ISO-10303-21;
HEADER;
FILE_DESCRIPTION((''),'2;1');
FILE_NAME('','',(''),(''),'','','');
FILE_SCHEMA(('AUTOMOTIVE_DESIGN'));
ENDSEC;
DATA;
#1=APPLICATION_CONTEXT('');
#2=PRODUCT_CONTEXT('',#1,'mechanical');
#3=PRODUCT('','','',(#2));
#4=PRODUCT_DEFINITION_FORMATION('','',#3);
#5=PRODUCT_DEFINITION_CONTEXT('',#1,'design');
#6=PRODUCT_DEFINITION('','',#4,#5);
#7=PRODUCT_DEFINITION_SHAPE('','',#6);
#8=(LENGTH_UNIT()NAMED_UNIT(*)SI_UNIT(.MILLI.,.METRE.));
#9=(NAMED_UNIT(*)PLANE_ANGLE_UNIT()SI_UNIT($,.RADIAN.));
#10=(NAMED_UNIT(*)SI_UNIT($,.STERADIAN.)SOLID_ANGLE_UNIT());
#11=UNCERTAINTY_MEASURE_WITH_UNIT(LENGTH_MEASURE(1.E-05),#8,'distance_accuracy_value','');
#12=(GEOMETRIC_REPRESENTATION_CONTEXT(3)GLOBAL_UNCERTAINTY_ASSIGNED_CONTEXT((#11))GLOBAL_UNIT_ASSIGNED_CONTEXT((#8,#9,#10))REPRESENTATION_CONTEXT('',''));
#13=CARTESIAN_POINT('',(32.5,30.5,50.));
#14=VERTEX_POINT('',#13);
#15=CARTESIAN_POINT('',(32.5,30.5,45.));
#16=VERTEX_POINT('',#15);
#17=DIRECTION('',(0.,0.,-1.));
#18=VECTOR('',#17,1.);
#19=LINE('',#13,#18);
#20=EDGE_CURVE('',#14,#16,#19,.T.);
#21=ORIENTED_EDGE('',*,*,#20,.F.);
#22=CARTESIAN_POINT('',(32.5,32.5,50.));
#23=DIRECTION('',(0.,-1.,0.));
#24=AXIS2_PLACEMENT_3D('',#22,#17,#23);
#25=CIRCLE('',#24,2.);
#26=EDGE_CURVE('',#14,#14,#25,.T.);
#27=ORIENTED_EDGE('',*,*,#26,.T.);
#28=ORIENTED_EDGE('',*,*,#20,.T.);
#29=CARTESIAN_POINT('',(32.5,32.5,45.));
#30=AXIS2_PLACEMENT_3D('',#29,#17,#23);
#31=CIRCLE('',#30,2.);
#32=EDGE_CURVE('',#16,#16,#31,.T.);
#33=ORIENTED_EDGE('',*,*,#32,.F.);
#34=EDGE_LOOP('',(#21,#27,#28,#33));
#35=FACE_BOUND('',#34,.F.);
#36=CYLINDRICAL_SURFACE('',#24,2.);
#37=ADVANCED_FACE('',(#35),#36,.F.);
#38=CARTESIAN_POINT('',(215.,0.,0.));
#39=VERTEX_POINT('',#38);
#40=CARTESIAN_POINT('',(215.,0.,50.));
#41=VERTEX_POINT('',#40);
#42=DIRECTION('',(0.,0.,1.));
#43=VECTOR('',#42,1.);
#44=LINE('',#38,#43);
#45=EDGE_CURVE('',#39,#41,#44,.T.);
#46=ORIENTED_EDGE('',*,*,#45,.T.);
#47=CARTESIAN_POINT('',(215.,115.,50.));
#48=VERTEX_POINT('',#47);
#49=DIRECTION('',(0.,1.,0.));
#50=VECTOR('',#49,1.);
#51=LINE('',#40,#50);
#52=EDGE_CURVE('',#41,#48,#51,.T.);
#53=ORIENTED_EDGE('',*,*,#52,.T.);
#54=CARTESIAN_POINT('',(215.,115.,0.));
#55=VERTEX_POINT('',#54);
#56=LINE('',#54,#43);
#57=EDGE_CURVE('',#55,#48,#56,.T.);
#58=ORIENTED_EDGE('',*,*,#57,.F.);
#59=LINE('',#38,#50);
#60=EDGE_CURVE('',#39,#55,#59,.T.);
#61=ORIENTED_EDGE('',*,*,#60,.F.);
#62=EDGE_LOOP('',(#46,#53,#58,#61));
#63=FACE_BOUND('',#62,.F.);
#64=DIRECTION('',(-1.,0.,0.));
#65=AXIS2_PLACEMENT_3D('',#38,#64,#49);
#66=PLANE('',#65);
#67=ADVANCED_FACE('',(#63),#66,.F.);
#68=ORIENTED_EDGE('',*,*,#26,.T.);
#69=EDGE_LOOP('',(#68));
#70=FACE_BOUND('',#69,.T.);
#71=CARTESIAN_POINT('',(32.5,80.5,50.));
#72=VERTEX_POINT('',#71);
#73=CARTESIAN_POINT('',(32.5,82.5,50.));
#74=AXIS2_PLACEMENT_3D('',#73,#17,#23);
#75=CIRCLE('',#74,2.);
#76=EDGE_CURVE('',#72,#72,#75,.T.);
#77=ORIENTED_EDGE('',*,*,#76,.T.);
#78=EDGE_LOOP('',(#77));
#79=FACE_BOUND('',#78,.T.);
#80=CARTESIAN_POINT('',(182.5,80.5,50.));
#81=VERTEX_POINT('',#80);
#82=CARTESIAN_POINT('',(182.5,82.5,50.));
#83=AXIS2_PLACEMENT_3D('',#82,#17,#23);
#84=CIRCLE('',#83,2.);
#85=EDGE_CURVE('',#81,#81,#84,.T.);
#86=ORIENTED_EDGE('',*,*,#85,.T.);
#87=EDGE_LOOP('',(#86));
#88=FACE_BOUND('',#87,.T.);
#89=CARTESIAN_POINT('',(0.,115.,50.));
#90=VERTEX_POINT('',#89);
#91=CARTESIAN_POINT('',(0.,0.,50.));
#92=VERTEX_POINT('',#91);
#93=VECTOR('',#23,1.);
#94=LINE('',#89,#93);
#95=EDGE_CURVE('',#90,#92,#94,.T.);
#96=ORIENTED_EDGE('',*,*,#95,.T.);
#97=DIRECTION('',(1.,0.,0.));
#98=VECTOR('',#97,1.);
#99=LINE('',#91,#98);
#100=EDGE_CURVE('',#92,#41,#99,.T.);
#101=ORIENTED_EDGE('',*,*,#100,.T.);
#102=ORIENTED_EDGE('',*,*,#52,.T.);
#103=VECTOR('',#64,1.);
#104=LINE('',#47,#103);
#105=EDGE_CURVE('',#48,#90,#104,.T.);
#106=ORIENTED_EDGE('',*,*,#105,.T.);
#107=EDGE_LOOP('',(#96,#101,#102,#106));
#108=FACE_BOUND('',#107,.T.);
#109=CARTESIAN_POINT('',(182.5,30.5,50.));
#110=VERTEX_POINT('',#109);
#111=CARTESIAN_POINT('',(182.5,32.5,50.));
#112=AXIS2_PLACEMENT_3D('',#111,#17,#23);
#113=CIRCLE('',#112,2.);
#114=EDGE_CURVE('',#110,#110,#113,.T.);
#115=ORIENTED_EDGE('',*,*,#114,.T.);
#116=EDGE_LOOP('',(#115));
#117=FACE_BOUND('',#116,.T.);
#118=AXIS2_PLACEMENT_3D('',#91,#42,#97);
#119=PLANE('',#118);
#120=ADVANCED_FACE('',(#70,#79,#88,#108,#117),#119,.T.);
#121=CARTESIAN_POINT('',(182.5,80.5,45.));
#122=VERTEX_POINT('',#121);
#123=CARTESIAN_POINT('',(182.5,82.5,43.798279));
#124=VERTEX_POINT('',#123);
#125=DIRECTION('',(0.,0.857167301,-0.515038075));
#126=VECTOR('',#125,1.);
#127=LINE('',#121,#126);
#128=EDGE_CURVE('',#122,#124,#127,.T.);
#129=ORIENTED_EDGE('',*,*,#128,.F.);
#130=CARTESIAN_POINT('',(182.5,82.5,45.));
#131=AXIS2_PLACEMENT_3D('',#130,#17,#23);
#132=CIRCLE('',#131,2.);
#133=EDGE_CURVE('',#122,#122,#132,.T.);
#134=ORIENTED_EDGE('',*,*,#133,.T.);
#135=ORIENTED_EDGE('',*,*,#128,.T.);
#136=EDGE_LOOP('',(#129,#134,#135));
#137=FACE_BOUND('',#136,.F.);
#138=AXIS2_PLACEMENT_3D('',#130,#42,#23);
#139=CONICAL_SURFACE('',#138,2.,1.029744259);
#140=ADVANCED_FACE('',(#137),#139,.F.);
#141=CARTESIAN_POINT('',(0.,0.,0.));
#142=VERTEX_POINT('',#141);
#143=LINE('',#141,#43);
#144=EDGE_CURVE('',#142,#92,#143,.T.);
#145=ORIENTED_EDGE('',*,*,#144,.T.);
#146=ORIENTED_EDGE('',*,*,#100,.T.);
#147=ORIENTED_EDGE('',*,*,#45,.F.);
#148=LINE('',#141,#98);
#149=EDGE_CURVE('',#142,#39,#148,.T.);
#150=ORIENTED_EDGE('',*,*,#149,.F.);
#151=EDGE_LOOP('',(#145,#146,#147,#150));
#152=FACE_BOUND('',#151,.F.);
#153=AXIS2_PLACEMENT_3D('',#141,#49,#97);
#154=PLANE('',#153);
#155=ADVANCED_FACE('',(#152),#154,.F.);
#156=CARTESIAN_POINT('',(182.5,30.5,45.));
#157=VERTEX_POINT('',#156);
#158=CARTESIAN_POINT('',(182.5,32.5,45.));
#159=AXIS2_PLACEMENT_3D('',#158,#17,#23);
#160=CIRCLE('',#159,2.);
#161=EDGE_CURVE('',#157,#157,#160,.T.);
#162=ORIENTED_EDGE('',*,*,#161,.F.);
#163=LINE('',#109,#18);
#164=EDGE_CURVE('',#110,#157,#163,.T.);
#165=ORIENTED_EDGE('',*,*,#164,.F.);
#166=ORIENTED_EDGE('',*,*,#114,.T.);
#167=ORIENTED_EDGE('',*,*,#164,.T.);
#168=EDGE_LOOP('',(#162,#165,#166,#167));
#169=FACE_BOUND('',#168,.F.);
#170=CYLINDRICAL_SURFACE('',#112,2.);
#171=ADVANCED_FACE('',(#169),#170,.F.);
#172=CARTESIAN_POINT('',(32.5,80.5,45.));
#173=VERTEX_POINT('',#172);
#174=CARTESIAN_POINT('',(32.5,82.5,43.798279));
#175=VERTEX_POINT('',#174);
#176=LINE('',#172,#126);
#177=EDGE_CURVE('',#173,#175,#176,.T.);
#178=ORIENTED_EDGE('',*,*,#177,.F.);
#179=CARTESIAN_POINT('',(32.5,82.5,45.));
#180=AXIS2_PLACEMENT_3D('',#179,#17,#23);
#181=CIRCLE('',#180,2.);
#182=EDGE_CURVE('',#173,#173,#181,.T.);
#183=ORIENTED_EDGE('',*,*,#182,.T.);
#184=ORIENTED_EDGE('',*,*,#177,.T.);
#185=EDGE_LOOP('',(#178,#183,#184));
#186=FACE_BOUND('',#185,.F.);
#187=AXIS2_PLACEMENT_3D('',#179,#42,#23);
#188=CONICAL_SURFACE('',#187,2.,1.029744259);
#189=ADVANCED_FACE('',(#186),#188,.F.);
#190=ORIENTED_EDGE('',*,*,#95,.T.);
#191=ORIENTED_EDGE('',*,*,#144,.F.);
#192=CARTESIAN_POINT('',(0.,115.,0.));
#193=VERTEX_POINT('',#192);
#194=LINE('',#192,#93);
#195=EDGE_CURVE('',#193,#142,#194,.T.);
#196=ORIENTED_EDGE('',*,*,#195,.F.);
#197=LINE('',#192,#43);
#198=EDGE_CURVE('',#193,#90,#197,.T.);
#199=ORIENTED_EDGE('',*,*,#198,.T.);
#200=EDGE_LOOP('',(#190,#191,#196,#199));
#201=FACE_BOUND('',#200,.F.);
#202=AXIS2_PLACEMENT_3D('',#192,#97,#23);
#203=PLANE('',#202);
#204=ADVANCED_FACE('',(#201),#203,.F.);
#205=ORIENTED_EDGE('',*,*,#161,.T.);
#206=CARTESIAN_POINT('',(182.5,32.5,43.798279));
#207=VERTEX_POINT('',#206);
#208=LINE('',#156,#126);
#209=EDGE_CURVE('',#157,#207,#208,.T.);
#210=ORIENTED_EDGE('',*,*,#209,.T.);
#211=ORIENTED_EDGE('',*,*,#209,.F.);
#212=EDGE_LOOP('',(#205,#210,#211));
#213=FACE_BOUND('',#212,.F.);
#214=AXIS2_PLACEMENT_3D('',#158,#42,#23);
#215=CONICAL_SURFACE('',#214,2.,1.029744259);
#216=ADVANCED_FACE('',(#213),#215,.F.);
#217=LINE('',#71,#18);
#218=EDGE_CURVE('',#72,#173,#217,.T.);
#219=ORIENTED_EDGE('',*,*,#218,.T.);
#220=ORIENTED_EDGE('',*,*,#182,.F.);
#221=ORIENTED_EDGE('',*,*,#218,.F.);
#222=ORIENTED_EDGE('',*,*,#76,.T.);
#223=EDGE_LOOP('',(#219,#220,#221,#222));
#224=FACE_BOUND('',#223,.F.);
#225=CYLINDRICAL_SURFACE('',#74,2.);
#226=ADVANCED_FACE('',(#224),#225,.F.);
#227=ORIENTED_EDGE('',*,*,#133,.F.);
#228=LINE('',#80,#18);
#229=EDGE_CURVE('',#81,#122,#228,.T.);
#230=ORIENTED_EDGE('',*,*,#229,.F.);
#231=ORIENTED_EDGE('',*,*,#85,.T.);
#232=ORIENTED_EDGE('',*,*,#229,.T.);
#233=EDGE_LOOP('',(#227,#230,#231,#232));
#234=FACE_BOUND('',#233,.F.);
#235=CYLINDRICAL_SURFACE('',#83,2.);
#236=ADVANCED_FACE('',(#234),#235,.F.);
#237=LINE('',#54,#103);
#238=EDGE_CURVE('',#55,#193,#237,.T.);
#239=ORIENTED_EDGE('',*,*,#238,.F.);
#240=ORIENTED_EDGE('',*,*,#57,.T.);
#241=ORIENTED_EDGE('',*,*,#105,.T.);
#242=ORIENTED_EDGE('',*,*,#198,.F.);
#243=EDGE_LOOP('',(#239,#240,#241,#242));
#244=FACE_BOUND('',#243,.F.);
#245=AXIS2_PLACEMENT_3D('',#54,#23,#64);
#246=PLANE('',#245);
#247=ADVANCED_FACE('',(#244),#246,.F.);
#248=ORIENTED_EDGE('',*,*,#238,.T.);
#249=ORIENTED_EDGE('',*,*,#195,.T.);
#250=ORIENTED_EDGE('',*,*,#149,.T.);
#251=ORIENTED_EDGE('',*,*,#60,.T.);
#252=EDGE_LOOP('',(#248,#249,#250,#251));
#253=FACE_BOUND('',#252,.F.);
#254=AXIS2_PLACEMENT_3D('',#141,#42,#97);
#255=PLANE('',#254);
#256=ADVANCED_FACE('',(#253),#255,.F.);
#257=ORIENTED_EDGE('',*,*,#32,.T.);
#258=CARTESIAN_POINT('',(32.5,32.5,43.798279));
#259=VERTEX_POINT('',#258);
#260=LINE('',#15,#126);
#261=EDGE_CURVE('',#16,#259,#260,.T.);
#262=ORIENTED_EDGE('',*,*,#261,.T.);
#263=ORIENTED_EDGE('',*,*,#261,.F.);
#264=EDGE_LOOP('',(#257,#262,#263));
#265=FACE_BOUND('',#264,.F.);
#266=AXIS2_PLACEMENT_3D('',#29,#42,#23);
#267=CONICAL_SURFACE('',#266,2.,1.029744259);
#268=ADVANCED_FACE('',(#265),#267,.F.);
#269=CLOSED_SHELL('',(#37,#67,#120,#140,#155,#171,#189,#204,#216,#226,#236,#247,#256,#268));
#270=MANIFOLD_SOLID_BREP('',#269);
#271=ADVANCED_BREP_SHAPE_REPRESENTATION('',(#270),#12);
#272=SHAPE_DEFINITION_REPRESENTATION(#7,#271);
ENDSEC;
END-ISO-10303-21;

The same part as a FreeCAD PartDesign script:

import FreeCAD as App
import Part
import Sketcher

V = App.Vector
Q = App.Units.Quantity

doc = App.newDocument("Part")
body = doc.addObject("PartDesign::Body", "Body")

# Sketch on XY plane
sketch1 = doc.addObject("Sketcher::SketchObject", "Sketch")
body.addObject(sketch1)
sketch1.AttachmentSupport = (doc.XY_Plane, [""])
sketch1.MapMode = "FlatFace"
sketch1.addGeometry([
    Part.LineSegment(V(0, 115, 0), V(0, 0, 0)),
    Part.LineSegment(V(0, 0, 0), V(215, 0, 0)),
    Part.LineSegment(V(215, 0, 0), V(215, 115, 0)),
    Part.LineSegment(V(215, 115, 0), V(0, 115, 0)),
], False)
sketch1.addConstraint([
    Sketcher.Constraint("Coincident", 0, 2, 1, 1),
    Sketcher.Constraint("Coincident", 1, 2, 2, 1),
    Sketcher.Constraint("Coincident", 2, 2, 3, 1),
    Sketcher.Constraint("Coincident", 3, 2, 0, 1),
    Sketcher.Constraint("Vertical", 0),
    Sketcher.Constraint("Horizontal", 1),
    Sketcher.Constraint("Vertical", 2),
    Sketcher.Constraint("Horizontal", 3),
    Sketcher.Constraint("Coincident", 0, 2, -1, 1),
    Sketcher.Constraint("DistanceX", 1, 1, 1, 2, Q("215 mm")),
    Sketcher.Constraint("DistanceY", 0, 2, 0, 1, Q("115 mm")),
])
pad1 = doc.addObject("PartDesign::Pad", "Pad")
body.addObject(pad1)
pad1.Profile = sketch1
pad1.Length = 50

# Sketch on XY plane
sketch2 = doc.addObject("Sketcher::SketchObject", "Sketch001")
body.addObject(sketch2)
sketch2.AttachmentSupport = (doc.XY_Plane, [""])
sketch2.MapMode = "FlatFace"
sketch2.AttachmentOffset = App.Placement(V(0, 0, 50), App.Rotation())
sketch2.addGeometry([
    Part.Circle(V(32.5, 82.5, 0), V(0, 0, 1), 2),
    Part.Circle(V(32.5, 32.5, 0), V(0, 0, 1), 2),
    Part.Circle(V(182.5, 32.5, 0), V(0, 0, 1), 2),
    Part.Circle(V(182.5, 82.5, 0), V(0, 0, 1), 2),
], False)
sketch2.addConstraint([
    Sketcher.Constraint("Equal", 0, 1),
    Sketcher.Constraint("Equal", 1, 2),
    Sketcher.Constraint("Equal", 2, 3),
    Sketcher.Constraint("Horizontal", 1, 3, 2, 3),
    Sketcher.Constraint("Horizontal", 0, 3, 3, 3),
    Sketcher.Constraint("Vertical", 0, 3, 1, 3),
    Sketcher.Constraint("Vertical", 2, 3, 3, 3),
    Sketcher.Constraint("Diameter", 0, Q("4 mm")),
    Sketcher.Constraint("DistanceY", 1, 3, 0, 3, Q("50 mm")),
    Sketcher.Constraint("DistanceX", 1, 3, 2, 3, Q("150 mm")),
    Sketcher.Constraint("DistanceX", -1, 1, 0, 3, Q("32.5 mm")),
    Sketcher.Constraint("DistanceY", -1, 1, 0, 3, Q("82.5 mm")),
])
doc.recompute()
hole = doc.addObject("PartDesign::Hole", "Hole")
body.addObject(hole)
hole.Profile = sketch2
hole.ThreadType = "None"
hole.Diameter = 4
hole.DepthType = "Dimension"
hole.Depth = 5
hole.DrillPoint = "Angled"
hole.DrillPointAngle = 118

doc.recompute()
